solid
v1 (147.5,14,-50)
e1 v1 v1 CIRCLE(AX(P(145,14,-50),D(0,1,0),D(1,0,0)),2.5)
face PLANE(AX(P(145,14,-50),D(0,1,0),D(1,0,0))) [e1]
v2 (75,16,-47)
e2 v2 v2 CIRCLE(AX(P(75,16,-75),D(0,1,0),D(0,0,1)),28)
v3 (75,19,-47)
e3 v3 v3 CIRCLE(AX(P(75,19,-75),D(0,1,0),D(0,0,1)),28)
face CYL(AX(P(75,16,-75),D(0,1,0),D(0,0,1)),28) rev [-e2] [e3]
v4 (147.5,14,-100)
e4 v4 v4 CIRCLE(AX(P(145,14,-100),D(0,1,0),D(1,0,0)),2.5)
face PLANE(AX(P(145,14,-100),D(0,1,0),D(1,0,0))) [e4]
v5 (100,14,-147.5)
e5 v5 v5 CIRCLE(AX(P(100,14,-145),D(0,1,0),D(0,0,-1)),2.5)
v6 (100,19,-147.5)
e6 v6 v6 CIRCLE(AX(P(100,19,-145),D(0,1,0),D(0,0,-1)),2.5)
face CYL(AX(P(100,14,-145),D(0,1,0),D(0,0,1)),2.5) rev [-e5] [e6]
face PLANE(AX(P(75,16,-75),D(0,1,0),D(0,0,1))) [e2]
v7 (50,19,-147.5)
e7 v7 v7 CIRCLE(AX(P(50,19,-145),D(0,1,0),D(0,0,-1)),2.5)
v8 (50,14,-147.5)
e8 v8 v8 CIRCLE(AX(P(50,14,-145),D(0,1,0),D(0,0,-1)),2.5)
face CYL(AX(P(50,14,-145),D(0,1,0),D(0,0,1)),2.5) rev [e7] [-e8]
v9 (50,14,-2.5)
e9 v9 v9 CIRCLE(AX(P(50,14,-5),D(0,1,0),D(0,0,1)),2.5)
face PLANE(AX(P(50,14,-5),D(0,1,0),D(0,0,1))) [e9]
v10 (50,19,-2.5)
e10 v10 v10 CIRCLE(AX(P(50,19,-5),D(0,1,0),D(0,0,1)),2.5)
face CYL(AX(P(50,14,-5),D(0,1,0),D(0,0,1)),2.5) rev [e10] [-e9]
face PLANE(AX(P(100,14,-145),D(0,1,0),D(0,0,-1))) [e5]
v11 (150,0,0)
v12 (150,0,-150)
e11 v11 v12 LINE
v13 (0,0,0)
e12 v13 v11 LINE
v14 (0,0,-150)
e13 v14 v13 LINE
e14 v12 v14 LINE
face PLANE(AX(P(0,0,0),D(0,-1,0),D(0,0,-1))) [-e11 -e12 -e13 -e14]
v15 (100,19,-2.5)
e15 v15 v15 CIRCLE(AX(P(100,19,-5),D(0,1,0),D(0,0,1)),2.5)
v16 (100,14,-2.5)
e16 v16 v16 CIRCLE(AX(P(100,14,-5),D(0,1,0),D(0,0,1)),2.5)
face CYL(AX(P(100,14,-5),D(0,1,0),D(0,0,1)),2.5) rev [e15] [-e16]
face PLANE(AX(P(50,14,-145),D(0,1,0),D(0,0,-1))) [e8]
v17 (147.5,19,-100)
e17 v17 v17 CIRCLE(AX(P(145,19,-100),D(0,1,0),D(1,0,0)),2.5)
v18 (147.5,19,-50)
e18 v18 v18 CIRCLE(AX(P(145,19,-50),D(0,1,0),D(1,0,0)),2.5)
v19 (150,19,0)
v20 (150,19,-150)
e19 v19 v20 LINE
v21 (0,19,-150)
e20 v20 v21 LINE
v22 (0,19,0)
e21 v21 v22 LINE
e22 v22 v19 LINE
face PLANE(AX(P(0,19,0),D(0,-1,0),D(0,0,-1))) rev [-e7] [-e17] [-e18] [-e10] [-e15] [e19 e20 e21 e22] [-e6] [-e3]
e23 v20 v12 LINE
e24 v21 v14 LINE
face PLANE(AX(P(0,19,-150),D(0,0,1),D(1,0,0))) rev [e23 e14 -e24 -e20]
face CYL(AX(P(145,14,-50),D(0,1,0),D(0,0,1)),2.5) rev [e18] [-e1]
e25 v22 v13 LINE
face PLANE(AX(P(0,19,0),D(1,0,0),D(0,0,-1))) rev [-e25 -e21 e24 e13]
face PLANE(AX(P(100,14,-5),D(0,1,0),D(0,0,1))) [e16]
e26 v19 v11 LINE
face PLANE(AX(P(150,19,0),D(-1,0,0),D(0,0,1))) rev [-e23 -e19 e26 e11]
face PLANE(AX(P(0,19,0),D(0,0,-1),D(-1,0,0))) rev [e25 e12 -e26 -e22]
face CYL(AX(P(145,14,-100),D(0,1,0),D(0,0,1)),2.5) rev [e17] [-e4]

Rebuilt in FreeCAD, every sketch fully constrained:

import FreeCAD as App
import Part
import Sketcher


def add_polygon(sketch, points):
    """Adds a closed chain of lines whose ends are joined by coincident constraints."""
    first, n = sketch.GeometryCount, len(points)
    for a, b in zip(points, points[1:] + points[:1]):
        sketch.addGeometry(Part.LineSegment(App.Vector(*a, 0), App.Vector(*b, 0)), False)
    for i in range(n):
        sketch.addConstraint(Sketcher.Constraint("Coincident", first + i, 2, first + (i + 1) % n, 1))

doc = App.newDocument("Part")
body = doc.addObject("PartDesign::Body", "Body")

# Sketch on XZ plane
sketch1 = body.newObject("Sketcher::SketchObject", "Sketch")
sketch1.AttachmentSupport = (doc.getObject("XZ_Plane"), [""])
sketch1.MapMode = "FlatFace"
add_polygon(sketch1, [(0, -150), (0, 0), (150, 0), (150, -150)])  # lines 0-3
sketch1.addConstraint([
    Sketcher.Constraint("Vertical", 0),
    Sketcher.Constraint("Horizontal", 1),
    Sketcher.Constraint("Vertical", 2),
    Sketcher.Constraint("Horizontal", 3),
    Sketcher.Constraint("Coincident", 0, 2, -1, 1),
    Sketcher.Constraint("Equal", 3, 0),
    Sketcher.Constraint("DistanceX", 1, 1, 1, 2, 150.0),
])
pad1 = body.newObject("PartDesign::Pad", "Pad")
pad1.Profile = sketch1
pad1.Length = 19
pad1.Reversed = True

# Sketch on XZ plane
sketch2 = body.newObject("Sketcher::SketchObject", "Sketch001")
sketch2.AttachmentSupport = (doc.getObject("XZ_Plane"), [""])
sketch2.MapMode = "FlatFace"
sketch2.AttachmentOffset = App.Placement(App.Vector(0, 0, -19), App.Rotation())
sketch2.addGeometry(Part.Circle(App.Vector(75, -75, 0), App.Vector(0, 0, 1), 28), False)
sketch2.addConstraint([
    Sketcher.Constraint("Diameter", 0, 56.0),
    Sketcher.Constraint("DistanceX", -1, 1, 0, 3, 75.0),
    Sketcher.Constraint("DistanceY", 0, 3, -1, 1, 75.0),
])
pocket1 = body.newObject("PartDesign::Pocket", "Pocket")
pocket1.Profile = sketch2
pocket1.Length = 3
pocket1.Reversed = True

# Sketch on XZ plane
sketch3 = body.newObject("Sketcher::SketchObject", "Sketch002")
sketch3.AttachmentSupport = (doc.getObject("XZ_Plane"), [""])
sketch3.MapMode = "FlatFace"
sketch3.AttachmentOffset = App.Placement(App.Vector(0, 0, -19), App.Rotation())
sketch3.addGeometry([
    Part.Circle(App.Vector(100, -5, 0), App.Vector(0, 0, 1), 2.5),
    Part.Circle(App.Vector(50, -5, 0), App.Vector(0, 0, 1), 2.5),
], False)
sketch3.addConstraint([
    Sketcher.Constraint("Equal", 0, 1),
    Sketcher.Constraint("Horizontal", 0, 3, 1, 3),
    Sketcher.Constraint("Diameter", 0, 5.0),
    Sketcher.Constraint("DistanceX", -1, 1, 0, 3, 100.0),
    Sketcher.Constraint("DistanceY", 0, 3, -1, 1, 5.0),
    Sketcher.Constraint("DistanceX", -1, 1, 1, 3, 50.0),
])
pocket2 = body.newObject("PartDesign::Pocket", "Pocket001")
pocket2.Profile = sketch3
pocket2.Length = 5
pocket2.Reversed = True
doc.recompute()

datumline = body.newObject("PartDesign::Line", "DatumLine")
datumline.Placement = App.Placement(App.Vector(75, 0, -75), App.Rotation(App.Vector(0, 0, 1), App.Vector(0, 1, 0)))
polarpattern = body.newObject("PartDesign::PolarPattern", "PolarPattern")
polarpattern.Originals = [pocket2]
polarpattern.Axis = (datumline, [""])
polarpattern.Angle = 180
polarpattern.Occurrences = 3
body.Tip = polarpattern

doc.recompute()
